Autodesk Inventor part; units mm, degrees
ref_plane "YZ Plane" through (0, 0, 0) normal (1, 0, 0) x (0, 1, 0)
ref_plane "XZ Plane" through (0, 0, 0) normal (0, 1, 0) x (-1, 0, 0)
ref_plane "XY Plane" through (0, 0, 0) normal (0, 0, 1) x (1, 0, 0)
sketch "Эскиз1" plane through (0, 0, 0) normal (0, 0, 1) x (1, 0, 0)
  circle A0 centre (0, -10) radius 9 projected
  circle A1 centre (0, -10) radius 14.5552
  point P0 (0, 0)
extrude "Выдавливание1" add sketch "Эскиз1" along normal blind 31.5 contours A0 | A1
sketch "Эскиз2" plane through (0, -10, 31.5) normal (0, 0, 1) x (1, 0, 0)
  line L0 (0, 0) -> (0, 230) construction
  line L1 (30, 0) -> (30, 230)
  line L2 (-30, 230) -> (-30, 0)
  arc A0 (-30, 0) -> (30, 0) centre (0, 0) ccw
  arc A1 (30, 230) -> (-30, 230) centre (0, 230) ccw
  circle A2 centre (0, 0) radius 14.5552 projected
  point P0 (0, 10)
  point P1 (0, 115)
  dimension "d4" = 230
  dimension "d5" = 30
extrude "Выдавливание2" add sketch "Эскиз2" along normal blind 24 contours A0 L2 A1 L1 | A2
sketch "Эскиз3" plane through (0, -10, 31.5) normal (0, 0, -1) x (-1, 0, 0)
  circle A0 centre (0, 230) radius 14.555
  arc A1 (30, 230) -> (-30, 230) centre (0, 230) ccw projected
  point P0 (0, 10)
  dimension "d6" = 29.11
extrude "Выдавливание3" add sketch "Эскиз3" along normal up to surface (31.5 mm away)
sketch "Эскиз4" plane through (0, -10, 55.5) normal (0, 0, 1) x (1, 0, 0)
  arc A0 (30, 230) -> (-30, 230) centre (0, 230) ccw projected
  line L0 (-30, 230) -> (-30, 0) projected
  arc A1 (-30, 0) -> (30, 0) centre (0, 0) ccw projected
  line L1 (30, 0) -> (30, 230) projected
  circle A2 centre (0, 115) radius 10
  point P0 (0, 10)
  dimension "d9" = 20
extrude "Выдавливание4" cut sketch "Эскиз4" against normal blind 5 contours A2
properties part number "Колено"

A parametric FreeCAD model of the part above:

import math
import FreeCAD as App
import Part
import Sketcher

V = App.Vector

doc = App.newDocument("Part")
body = doc.addObject("PartDesign::Body", "Body")

sketch1 = body.newObject("Sketcher::SketchObject", "Sketch")
sketch1.AttachmentSupport = (doc.getObject("XY_Plane"), [""])
sketch1.MapMode = "FlatFace"
sketch1.addGeometry(Part.Circle(V(0, -10, 0), V(0, 0, 1), 15), False)
sketch1.addConstraint([
    Sketcher.Constraint("PointOnObject", 0, 3, -2),
    Sketcher.Constraint("DistanceY", 0, 3, -1, 1, 10.0),
    Sketcher.Constraint("Diameter", 0, 29.1104),
])
pad1 = body.newObject("PartDesign::Pad", "Pad")
pad1.Profile = sketch1
pad1.Length = 31.5

sketch2 = body.newObject("Sketcher::SketchObject", "Sketch001")
sketch2.AttachmentSupport = (doc.getObject("XY_Plane"), [""])
sketch2.MapMode = "FlatFace"
sketch2.AttachmentOffset = App.Placement(V(0, 0, 31.5), App.Rotation())
sketch2.addGeometry([
    Part.ArcOfCircle(Part.Circle(V(0, -10, 0), V(0, 0, 1), 30), math.radians(180), math.radians(360)),
    Part.LineSegment(V(30, -10, 0), V(30, 220, 0)),
    Part.ArcOfCircle(Part.Circle(V(0, 220, 0), V(0, 0, 1), 30), math.radians(0), math.radians(180)),
    Part.LineSegment(V(-30, 220, 0), V(-30, -10, 0)),
], False)
sketch2.addConstraint([
    Sketcher.Constraint("Tangent", 0, 2, 1, 1),
    Sketcher.Constraint("Tangent", 1, 2, 2, 1),
    Sketcher.Constraint("Tangent", 2, 2, 3, 1),
    Sketcher.Constraint("Tangent", 3, 2, 0, 1),
    Sketcher.Constraint("Vertical", 1),
    Sketcher.Constraint("Vertical", 3),
    Sketcher.Constraint("PointOnObject", 0, 3, -2),
    Sketcher.Constraint("Radius", 0, 30.0),
    Sketcher.Constraint("DistanceY", 1, 1, 1, 2, 230.0),
    Sketcher.Constraint("DistanceY", 0, 3, -1, 1, 10.0),
])
pad2 = body.newObject("PartDesign::Pad", "Pad001")
pad2.Profile = sketch2
pad2.Length = 24

sketch3 = body.newObject("Sketcher::SketchObject", "Sketch002")
sketch3.AttachmentSupport = (doc.getObject("XY_Plane"), [""])
sketch3.MapMode = "FlatFace"
sketch3.AttachmentOffset = App.Placement(V(0, 0, 31.5), App.Rotation())
sketch3.addGeometry(Part.Circle(V(0, 220, 0), V(0, 0, 1), 15), False)
sketch3.addConstraint([
    Sketcher.Constraint("PointOnObject", 0, 3, -2),
    Sketcher.Constraint("Diameter", 0, 29.11),
    Sketcher.Constraint("DistanceY", -1, 1, 0, 3, 220.0),
])
pad3 = body.newObject("PartDesign::Pad", "Pad002")
pad3.Profile = sketch3
pad3.Length = 31.5
pad3.Reversed = True

sketch4 = body.newObject("Sketcher::SketchObject", "Sketch003")
sketch4.AttachmentSupport = (doc.getObject("XY_Plane"), [""])
sketch4.MapMode = "FlatFace"
sketch4.AttachmentOffset = App.Placement(V(0, 0, 55.5), App.Rotation())
sketch4.addGeometry(Part.Circle(V(0, 105, 0), V(0, 0, 1), 10), False)
sketch4.addConstraint([
    Sketcher.Constraint("PointOnObject", 0, 3, -2),
    Sketcher.Constraint("Diameter", 0, 20.0),
    Sketcher.Constraint("DistanceY", -1, 1, 0, 3, 105.0),
])
pocket1 = body.newObject("PartDesign::Pocket", "Pocket")
pocket1.Profile = sketch4
pocket1.Length = 5

doc.recompute()
